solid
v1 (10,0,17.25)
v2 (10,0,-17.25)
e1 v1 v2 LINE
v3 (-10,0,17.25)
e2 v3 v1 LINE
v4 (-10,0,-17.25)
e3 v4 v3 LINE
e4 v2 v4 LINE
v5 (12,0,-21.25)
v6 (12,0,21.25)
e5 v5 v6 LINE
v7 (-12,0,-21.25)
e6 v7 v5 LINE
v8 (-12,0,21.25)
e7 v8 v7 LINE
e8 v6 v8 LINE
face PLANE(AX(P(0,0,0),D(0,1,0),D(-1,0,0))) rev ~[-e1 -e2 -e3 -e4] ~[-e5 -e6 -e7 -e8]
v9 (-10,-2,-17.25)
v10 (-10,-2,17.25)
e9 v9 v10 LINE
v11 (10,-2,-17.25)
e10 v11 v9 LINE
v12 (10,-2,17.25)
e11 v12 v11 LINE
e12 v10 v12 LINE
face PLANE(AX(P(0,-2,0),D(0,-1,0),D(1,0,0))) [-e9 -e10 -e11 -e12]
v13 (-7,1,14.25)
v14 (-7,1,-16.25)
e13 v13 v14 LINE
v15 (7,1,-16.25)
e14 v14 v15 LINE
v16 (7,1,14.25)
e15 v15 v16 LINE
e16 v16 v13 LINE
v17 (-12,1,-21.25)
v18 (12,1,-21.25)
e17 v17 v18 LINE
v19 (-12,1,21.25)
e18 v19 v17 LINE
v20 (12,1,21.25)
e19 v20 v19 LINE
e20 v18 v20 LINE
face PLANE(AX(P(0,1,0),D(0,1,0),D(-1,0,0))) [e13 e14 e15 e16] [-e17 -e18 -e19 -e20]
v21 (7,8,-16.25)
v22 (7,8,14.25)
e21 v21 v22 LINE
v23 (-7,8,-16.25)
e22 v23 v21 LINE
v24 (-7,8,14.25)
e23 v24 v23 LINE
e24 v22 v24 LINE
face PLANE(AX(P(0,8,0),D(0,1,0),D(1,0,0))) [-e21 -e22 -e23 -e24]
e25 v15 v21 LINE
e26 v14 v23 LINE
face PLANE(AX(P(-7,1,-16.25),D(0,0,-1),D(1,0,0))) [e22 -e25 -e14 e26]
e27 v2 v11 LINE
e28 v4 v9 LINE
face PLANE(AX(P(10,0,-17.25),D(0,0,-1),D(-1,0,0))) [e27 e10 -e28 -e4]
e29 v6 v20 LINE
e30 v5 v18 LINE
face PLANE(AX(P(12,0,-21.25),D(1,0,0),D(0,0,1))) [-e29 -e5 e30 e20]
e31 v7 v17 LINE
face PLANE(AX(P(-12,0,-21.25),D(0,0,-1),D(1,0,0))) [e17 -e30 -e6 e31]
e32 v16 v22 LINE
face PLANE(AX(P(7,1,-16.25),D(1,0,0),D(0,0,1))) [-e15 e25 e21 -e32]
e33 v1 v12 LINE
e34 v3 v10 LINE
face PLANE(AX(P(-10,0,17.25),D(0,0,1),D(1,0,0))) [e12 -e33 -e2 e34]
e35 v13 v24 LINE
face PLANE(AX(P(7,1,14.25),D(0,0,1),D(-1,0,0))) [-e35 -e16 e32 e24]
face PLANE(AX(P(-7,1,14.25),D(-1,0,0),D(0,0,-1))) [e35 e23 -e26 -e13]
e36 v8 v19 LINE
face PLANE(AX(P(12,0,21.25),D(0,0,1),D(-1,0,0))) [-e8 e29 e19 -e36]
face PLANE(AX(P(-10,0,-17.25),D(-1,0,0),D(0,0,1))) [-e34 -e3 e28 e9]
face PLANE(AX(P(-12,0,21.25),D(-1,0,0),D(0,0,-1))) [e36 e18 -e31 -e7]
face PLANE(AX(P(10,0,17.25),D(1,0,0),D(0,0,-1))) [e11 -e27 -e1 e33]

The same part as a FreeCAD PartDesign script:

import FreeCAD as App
import Part
import Sketcher
from FreeCAD import Vector

doc = App.newDocument("Part")
body = doc.addObject("PartDesign::Body", "Body")

# Sketch on XZ plane
sketch1 = body.newObject("Sketcher::SketchObject", "Sketch")
sketch1.AttachmentSupport = (doc.getObject("XZ_Plane"), [""])
sketch1.MapMode = "FlatFace"
sketch1.addGeometry(Part.LineSegment(Vector(12, -21, 0), Vector(-12, -21, 0)), False)
sketch1.addGeometry(Part.LineSegment(Vector(-12, -21, 0), Vector(-12, 21, 0)), False)
sketch1.addGeometry(Part.LineSegment(Vector(-12, 21, 0), Vector(12, 21, 0)), False)
sketch1.addGeometry(Part.LineSegment(Vector(12, 21, 0), Vector(12, -21, 0)), False)
sketch1.addConstraint(Sketcher.Constraint("Coincident", 0, 2, 1, 1))
sketch1.addConstraint(Sketcher.Constraint("Coincident", 1, 2, 2, 1))
sketch1.addConstraint(Sketcher.Constraint("Coincident", 2, 2, 3, 1))
sketch1.addConstraint(Sketcher.Constraint("Coincident", 3, 2, 0, 1))
sketch1.addConstraint(Sketcher.Constraint("Horizontal", 0))
sketch1.addConstraint(Sketcher.Constraint("Vertical", 1))
sketch1.addConstraint(Sketcher.Constraint("Horizontal", 2))
sketch1.addConstraint(Sketcher.Constraint("Vertical", 3))
sketch1.addConstraint(Sketcher.Constraint("Symmetric", 0, 2, 2, 2, -1, 1))
sketch1.addConstraint(Sketcher.Constraint("DistanceX", 0, 2, 0, 1, 24.0))
sketch1.addConstraint(Sketcher.Constraint("DistanceY", 1, 1, 1, 2, 42.5))
pad1 = body.newObject("PartDesign::Pad", "Pad")
pad1.Profile = sketch1
pad1.Length = 1
pad1.Reversed = True

# Sketch on XZ plane
sketch2 = body.newObject("Sketcher::SketchObject", "Sketch001")
sketch2.AttachmentSupport = (doc.getObject("XZ_Plane"), [""])
sketch2.MapMode = "FlatFace"
sketch2.addGeometry(Part.LineSegment(Vector(10, 17, 0), Vector(-10, 17, 0)), False)
sketch2.addGeometry(Part.LineSegment(Vector(-10, 17, 0), Vector(-10, -17, 0)), False)
sketch2.addGeometry(Part.LineSegment(Vector(-10, -17, 0), Vector(10, -17, 0)), False)
sketch2.addGeometry(Part.LineSegment(Vector(10, -17, 0), Vector(10, 17, 0)), False)
sketch2.addConstraint(Sketcher.Constraint("Coincident", 0, 2, 1, 1))
sketch2.addConstraint(Sketcher.Constraint("Coincident", 1, 2, 2, 1))
sketch2.addConstraint(Sketcher.Constraint("Coincident", 2, 2, 3, 1))
sketch2.addConstraint(Sketcher.Constraint("Coincident", 3, 2, 0, 1))
sketch2.addConstraint(Sketcher.Constraint("Horizontal", 0))
sketch2.addConstraint(Sketcher.Constraint("Vertical", 1))
sketch2.addConstraint(Sketcher.Constraint("Horizontal", 2))
sketch2.addConstraint(Sketcher.Constraint("Vertical", 3))
sketch2.addConstraint(Sketcher.Constraint("Symmetric", 0, 2, 2, 2, -1, 1))
sketch2.addConstraint(Sketcher.Constraint("DistanceX", 0, 2, 0, 1, 20.0))
sketch2.addConstraint(Sketcher.Constraint("DistanceY", 1, 2, 1, 1, 34.5))
pad2 = body.newObject("PartDesign::Pad", "Pad001")
pad2.Profile = sketch2
pad2.Length = 2

# Sketch on XZ plane
sketch3 = body.newObject("Sketcher::SketchObject", "Sketch002")
sketch3.AttachmentSupport = (doc.getObject("XZ_Plane"), [""])
sketch3.MapMode = "FlatFace"
sketch3.AttachmentOffset = App.Placement(Vector(0, 0, -1), App.Rotation())
sketch3.addGeometry(Part.LineSegment(Vector(-7, 14, 0), Vector(7, 14, 0)), False)
sketch3.addGeometry(Part.LineSegment(Vector(7, 14, 0), Vector(7, -16, 0)), False)
sketch3.addGeometry(Part.LineSegment(Vector(7, -16, 0), Vector(-7, -16, 0)), False)
sketch3.addGeometry(Part.LineSegment(Vector(-7, -16, 0), Vector(-7, 14, 0)), False)
sketch3.addConstraint(Sketcher.Constraint("Coincident", 0, 2, 1, 1))
sketch3.addConstraint(Sketcher.Constraint("Coincident", 1, 2, 2, 1))
sketch3.addConstraint(Sketcher.Constraint("Coincident", 2, 2, 3, 1))
sketch3.addConstraint(Sketcher.Constraint("Coincident", 3, 2, 0, 1))
sketch3.addConstraint(Sketcher.Constraint("Horizontal", 0))
sketch3.addConstraint(Sketcher.Constraint("Vertical", 1))
sketch3.addConstraint(Sketcher.Constraint("Horizontal", 2))
sketch3.addConstraint(Sketcher.Constraint("Vertical", 3))
sketch3.addConstraint(Sketcher.Constraint("DistanceX", -1, 1, 0, 2, 7.0))
sketch3.addConstraint(Sketcher.Constraint("DistanceX", 2, 2, -1, 1, 7.0))
sketch3.addConstraint(Sketcher.Constraint("DistanceY", 1, 2, 1, 1, 30.5))
sketch3.addConstraint(Sketcher.Constraint("DistanceY", -1, 1, 0, 2, 14.25))
pad3 = body.newObject("PartDesign::Pad", "Pad002")
pad3.Profile = sketch3
pad3.Length = 7
pad3.Reversed = True

doc.recompute()
